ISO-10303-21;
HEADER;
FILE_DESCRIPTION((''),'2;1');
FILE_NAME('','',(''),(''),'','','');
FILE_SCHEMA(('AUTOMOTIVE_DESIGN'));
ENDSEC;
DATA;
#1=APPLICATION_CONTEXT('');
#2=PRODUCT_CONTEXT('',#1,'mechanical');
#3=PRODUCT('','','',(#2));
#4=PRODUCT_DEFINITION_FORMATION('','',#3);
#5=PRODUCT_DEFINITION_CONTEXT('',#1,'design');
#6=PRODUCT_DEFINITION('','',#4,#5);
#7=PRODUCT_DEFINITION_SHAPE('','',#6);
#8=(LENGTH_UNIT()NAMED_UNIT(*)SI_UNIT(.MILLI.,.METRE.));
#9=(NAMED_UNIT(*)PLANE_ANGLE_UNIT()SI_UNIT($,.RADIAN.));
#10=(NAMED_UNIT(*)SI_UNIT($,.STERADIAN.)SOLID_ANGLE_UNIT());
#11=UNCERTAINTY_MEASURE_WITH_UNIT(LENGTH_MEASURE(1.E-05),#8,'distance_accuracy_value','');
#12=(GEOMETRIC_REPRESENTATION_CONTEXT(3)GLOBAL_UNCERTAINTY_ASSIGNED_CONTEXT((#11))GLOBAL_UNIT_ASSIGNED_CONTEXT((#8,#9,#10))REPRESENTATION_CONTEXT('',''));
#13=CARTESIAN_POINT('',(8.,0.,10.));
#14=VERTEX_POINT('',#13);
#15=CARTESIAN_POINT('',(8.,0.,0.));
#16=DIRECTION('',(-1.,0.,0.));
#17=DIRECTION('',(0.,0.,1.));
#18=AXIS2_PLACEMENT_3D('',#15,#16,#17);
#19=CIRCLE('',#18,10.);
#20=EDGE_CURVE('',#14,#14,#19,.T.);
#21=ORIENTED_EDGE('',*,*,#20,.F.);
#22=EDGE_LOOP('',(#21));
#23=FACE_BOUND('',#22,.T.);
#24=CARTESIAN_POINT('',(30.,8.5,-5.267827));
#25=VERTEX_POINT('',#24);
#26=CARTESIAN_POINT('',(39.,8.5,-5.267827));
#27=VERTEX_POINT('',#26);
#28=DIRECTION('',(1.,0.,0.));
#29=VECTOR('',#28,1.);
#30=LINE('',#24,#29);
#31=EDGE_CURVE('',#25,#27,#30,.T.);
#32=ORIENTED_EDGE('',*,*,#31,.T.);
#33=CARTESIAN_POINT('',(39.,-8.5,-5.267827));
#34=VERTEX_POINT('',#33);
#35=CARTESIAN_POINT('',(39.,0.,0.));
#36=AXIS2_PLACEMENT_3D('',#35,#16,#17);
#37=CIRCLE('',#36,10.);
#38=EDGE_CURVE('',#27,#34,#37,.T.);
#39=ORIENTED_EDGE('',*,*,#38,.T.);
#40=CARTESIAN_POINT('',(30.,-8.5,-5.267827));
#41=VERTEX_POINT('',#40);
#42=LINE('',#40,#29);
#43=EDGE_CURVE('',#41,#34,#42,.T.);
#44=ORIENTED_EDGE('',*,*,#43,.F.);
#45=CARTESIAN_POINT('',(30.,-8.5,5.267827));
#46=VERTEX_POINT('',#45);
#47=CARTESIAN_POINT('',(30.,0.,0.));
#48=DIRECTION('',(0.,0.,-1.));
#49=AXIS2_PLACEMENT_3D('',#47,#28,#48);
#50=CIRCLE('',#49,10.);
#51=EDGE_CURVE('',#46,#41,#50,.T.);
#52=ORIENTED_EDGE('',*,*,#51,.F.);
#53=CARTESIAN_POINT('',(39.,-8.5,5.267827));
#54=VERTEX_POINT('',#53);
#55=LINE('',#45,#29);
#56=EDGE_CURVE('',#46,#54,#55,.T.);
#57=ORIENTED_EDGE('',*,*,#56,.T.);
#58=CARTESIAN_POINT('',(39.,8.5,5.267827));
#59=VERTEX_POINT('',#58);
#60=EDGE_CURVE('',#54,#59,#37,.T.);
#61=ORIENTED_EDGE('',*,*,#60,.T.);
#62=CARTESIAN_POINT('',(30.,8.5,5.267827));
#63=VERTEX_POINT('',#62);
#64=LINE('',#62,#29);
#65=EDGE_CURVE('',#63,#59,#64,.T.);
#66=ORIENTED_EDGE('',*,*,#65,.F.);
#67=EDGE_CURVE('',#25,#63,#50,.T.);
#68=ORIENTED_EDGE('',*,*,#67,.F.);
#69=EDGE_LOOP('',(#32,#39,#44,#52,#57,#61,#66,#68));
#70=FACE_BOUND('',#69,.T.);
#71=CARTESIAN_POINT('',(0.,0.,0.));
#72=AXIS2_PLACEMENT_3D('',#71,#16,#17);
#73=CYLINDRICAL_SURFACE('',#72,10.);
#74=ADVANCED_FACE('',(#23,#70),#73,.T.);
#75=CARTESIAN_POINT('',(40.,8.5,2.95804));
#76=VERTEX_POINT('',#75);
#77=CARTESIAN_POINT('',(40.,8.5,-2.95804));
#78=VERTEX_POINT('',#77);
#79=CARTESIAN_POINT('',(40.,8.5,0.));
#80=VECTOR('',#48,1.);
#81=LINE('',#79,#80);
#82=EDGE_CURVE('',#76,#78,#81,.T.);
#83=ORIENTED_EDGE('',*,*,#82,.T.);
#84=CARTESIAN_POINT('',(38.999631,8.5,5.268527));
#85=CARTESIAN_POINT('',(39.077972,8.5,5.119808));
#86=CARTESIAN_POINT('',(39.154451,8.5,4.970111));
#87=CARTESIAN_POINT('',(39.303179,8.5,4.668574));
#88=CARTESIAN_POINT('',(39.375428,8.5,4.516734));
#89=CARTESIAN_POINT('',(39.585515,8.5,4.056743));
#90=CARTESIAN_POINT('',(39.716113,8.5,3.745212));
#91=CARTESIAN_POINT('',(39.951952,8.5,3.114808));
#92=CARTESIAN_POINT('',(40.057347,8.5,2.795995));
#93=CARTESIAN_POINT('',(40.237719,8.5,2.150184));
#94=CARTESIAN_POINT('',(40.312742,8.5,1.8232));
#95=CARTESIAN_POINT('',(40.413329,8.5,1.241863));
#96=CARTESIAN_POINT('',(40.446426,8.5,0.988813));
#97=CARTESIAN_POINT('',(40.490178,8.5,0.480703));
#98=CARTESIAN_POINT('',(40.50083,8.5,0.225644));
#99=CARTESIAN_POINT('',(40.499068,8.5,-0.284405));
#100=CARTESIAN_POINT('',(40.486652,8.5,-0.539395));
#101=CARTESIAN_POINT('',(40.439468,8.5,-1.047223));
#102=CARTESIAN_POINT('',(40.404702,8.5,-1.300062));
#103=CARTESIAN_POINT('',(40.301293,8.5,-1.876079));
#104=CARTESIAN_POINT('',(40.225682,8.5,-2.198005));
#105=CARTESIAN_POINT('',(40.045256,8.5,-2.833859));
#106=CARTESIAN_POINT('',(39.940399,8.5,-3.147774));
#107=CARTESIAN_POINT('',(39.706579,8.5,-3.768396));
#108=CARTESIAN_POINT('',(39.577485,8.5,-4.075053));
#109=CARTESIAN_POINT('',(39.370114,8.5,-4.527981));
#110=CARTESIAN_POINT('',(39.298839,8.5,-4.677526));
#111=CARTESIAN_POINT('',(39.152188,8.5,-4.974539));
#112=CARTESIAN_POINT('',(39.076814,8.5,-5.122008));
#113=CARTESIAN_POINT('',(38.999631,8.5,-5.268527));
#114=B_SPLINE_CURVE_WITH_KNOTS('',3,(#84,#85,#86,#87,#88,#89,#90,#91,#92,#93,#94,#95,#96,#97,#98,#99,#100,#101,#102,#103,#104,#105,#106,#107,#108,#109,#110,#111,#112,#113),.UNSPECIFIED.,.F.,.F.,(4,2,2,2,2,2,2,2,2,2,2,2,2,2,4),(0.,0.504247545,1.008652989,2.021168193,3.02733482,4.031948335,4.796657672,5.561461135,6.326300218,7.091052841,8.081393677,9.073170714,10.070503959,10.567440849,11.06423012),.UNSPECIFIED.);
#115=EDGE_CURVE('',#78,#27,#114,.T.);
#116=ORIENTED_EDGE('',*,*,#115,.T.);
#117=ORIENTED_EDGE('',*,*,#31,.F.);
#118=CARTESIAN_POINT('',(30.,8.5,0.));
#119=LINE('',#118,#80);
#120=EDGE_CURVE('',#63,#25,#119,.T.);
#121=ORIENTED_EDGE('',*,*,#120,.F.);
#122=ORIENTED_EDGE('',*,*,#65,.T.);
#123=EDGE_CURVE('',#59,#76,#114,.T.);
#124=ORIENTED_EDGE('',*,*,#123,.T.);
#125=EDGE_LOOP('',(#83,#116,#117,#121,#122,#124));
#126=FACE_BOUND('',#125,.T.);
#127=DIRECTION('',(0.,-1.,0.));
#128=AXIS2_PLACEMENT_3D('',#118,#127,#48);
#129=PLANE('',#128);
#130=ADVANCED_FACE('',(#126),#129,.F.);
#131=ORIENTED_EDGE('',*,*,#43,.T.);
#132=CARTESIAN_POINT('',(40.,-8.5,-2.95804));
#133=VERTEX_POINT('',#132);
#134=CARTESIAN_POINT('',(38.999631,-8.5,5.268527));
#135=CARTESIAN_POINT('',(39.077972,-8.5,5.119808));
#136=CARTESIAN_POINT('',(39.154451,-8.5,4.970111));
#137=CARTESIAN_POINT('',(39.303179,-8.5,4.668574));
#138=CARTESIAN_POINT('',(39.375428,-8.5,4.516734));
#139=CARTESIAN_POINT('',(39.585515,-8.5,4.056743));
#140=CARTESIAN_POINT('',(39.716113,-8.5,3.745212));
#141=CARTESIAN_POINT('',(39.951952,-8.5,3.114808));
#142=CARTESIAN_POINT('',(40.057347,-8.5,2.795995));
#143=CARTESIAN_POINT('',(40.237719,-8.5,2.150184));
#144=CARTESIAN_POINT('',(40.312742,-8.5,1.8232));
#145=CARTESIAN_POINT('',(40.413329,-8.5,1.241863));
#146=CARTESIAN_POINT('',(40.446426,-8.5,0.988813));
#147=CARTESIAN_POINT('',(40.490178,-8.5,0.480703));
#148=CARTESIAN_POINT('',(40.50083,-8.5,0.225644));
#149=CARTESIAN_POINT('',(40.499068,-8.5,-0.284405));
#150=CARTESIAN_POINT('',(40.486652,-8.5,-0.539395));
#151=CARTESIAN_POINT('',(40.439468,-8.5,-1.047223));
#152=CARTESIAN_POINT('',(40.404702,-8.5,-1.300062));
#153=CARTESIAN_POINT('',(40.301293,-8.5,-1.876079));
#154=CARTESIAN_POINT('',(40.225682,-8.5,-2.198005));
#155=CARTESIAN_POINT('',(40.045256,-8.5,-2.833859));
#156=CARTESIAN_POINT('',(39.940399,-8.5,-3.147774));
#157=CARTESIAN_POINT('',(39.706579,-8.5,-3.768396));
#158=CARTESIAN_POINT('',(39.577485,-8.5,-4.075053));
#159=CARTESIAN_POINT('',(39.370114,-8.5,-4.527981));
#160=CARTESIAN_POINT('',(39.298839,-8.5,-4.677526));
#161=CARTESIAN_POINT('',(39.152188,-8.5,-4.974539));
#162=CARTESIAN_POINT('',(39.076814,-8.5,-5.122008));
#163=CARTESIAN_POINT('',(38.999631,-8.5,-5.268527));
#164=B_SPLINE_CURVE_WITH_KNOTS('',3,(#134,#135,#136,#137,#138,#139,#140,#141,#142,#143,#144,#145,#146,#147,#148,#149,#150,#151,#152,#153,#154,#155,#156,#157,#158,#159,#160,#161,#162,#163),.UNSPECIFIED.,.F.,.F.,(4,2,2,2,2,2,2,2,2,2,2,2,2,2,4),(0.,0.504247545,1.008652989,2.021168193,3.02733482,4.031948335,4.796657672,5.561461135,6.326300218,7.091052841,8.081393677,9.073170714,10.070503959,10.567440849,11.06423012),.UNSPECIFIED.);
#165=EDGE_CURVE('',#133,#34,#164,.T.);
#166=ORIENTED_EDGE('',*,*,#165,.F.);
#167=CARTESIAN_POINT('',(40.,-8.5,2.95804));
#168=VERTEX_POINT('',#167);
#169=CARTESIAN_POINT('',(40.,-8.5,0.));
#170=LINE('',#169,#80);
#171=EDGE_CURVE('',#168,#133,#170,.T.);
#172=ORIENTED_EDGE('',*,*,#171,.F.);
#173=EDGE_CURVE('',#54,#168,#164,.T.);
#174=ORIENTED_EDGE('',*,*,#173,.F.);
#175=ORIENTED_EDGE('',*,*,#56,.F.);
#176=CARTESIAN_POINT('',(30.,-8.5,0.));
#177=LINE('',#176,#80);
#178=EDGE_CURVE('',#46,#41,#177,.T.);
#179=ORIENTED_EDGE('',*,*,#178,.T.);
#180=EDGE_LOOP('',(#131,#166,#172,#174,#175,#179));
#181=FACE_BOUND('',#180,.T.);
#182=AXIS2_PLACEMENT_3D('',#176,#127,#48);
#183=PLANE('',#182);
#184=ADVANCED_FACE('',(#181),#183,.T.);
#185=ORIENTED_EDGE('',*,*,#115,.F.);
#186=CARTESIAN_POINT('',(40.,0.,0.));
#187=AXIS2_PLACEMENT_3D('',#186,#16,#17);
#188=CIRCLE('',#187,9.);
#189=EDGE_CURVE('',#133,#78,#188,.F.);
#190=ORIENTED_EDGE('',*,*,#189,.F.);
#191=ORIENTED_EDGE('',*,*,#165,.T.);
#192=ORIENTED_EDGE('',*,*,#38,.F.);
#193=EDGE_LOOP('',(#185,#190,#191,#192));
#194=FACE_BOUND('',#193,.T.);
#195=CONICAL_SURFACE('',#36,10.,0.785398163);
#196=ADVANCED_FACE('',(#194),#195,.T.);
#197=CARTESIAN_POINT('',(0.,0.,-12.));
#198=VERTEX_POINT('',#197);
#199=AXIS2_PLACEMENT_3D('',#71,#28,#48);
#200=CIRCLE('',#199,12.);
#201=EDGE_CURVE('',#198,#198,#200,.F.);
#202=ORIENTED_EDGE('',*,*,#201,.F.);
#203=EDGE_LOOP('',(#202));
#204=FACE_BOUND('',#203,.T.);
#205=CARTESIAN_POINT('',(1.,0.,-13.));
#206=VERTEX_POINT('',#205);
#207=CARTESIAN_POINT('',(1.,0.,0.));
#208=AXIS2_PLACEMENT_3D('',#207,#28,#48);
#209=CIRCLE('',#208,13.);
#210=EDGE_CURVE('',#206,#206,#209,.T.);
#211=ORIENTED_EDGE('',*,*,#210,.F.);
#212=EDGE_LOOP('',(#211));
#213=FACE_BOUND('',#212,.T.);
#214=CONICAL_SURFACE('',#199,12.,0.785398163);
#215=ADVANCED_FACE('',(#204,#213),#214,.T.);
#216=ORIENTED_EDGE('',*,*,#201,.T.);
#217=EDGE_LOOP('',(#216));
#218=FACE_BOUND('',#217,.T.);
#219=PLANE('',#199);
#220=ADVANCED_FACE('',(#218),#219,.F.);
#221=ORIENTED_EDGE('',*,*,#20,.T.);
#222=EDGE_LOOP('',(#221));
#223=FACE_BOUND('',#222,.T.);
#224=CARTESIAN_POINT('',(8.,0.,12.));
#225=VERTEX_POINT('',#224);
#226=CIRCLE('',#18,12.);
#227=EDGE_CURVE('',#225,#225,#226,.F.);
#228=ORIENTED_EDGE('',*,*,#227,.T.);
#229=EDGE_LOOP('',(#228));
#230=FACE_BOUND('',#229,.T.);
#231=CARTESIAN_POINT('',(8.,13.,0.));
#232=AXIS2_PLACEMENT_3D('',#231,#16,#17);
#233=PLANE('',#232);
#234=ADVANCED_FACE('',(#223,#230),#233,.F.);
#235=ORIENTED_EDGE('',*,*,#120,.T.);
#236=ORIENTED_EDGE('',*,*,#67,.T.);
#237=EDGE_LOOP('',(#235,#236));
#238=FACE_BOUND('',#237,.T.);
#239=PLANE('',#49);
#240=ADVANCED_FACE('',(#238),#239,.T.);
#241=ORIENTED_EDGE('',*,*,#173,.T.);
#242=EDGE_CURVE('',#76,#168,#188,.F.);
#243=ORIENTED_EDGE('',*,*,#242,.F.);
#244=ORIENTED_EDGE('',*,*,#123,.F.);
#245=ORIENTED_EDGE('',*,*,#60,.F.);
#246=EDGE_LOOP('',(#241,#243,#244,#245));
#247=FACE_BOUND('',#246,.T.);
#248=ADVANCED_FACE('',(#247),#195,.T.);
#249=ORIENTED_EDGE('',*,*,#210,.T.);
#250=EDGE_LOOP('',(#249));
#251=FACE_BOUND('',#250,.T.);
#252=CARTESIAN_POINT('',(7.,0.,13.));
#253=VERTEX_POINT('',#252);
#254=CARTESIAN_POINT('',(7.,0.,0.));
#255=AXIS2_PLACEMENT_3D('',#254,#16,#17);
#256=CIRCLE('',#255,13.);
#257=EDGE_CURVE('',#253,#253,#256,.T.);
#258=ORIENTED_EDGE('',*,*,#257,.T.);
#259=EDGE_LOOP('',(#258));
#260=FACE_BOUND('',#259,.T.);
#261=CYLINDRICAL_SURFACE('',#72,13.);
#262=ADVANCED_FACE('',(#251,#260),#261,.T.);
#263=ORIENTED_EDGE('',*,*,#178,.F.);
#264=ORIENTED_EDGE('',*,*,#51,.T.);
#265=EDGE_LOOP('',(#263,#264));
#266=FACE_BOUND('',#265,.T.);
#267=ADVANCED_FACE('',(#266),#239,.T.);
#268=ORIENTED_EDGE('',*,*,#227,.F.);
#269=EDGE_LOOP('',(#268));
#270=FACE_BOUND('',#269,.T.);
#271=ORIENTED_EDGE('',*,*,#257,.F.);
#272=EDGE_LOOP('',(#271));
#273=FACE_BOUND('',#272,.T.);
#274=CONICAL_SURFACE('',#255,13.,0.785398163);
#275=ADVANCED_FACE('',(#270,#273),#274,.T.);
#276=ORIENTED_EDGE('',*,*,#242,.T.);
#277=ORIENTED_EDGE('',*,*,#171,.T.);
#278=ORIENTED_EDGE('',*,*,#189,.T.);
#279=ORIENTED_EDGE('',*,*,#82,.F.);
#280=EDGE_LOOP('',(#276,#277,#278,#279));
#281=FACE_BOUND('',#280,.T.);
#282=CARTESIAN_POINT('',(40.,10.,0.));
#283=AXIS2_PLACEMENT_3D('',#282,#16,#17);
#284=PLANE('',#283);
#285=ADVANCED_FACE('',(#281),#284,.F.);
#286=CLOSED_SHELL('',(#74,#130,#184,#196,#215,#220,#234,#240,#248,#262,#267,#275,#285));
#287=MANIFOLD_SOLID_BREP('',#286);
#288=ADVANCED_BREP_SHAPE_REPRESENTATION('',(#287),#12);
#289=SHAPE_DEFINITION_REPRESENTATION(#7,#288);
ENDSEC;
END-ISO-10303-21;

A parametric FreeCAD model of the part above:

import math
import FreeCAD as App
import Part
import Sketcher
from FreeCAD import Vector


def edges_at(feature, points):
    """Names of the edges that pass closest to the given points."""
    edges = feature.Shape.Edges
    near = lambda p: min(range(len(edges)), key=lambda i: edges[i].distToShape(Part.Vertex(*p))[0])
    return sorted({f"Edge{near(p) + 1}" for p in points})

doc = App.newDocument("Part")
body = doc.addObject("PartDesign::Body", "Body")

# Sketch on XY plane
sketch1 = body.newObject("Sketcher::SketchObject", "Sketch")
sketch1.AttachmentSupport = (doc.getObject("XY_Plane"), [""])
sketch1.MapMode = "FlatFace"
sketch1.addGeometry([
    Part.LineSegment(Vector(0, 13, 0), Vector(0, 0, 0)),  # 0
    Part.LineSegment(Vector(0, 0, 0), Vector(40, 0, 0)),  # 1
    Part.LineSegment(Vector(40, 0, 0), Vector(40, 10, 0)),  # 2
    Part.LineSegment(Vector(40, 10, 0), Vector(8, 10, 0)),  # 3
    Part.LineSegment(Vector(8, 10, 0), Vector(8, 13, 0)),  # 4
    Part.LineSegment(Vector(8, 13, 0), Vector(0, 13, 0)),  # 5
], False)
sketch1.addConstraint([
    Sketcher.Constraint("Coincident", 0, 2, 1, 1),
    Sketcher.Constraint("Coincident", 1, 2, 2, 1),
    Sketcher.Constraint("Coincident", 2, 2, 3, 1),
    Sketcher.Constraint("Coincident", 3, 2, 4, 1),
    Sketcher.Constraint("Coincident", 4, 2, 5, 1),
    Sketcher.Constraint("Coincident", 5, 2, 0, 1),
    Sketcher.Constraint("Vertical", 0),
    Sketcher.Constraint("Horizontal", 1),
    Sketcher.Constraint("Vertical", 2),
    Sketcher.Constraint("Horizontal", 3),
    Sketcher.Constraint("Vertical", 4),
    Sketcher.Constraint("Horizontal", 5),
    Sketcher.Constraint("Coincident", 0, 2, -1, 1),
    Sketcher.Constraint("DistanceX", 1, 1, 1, 2, 40.0),
    Sketcher.Constraint("DistanceX", 3, 2, 3, 1, 32.0),
    Sketcher.Constraint("DistanceY", 0, 2, 0, 1, 13.0),
    Sketcher.Constraint("DistanceY", 2, 1, 2, 2, 10.0),
])
revolution = body.newObject("PartDesign::Revolution", "Revolution")
revolution.Profile = sketch1
revolution.ReferenceAxis = (sketch1, ["H_Axis"])
revolution.Angle = 360
doc.recompute()

chamfer = body.newObject("PartDesign::Chamfer", "Chamfer")
chamfer.Base = (revolution, edges_at(revolution, [(40, 0, -10), (8, 0, -13), (0, 0, -13)]))
chamfer.Size = 1

# Sketch on YZ plane
sketch2 = body.newObject("Sketcher::SketchObject", "Sketch001")
sketch2.AttachmentSupport = (doc.getObject("YZ_Plane"), [""])
sketch2.MapMode = "FlatFace"
sketch2.AttachmentOffset = App.Placement(Vector(0, 0, 40), App.Rotation())
sketch2.addGeometry([
    Part.ArcOfCircle(Part.Circle(Vector(0, 0, 0), Vector(0, 0, 1), 10), math.radians(-31.788331), math.radians(31.788331)),
    Part.LineSegment(Vector(8.5, 5.267827, 0), Vector(8.5, -5.267827, 0)),
    Part.ArcOfCircle(Part.Circle(Vector(0, 0, 0), Vector(0, 0, 1), 10), math.radians(148.211669), math.radians(211.788331)),
    Part.LineSegment(Vector(-8.5, -5.267827, 0), Vector(-8.5, 5.267827, 0)),
], False)
sketch2.addConstraint([
    Sketcher.Constraint("Coincident", 0, 1, 1, 2),
    Sketcher.Constraint("Coincident", 1, 1, 0, 2),
    Sketcher.Constraint("Coincident", 2, 1, 3, 2),
    Sketcher.Constraint("Coincident", 3, 1, 2, 2),
    Sketcher.Constraint("Vertical", 1),
    Sketcher.Constraint("Vertical", 3),
    Sketcher.Constraint("Coincident", 0, 3, -1, 1),
    Sketcher.Constraint("Coincident", 2, 3, -1, 1),
    Sketcher.Constraint("Equal", 0, 2),
    Sketcher.Constraint("Horizontal", 1, 1, 2, 1),
    Sketcher.Constraint("Radius", 0, 10.0),
    Sketcher.Constraint("DistanceX", 2, 1, 1, 1, 17.0),
])
pocket1 = body.newObject("PartDesign::Pocket", "Pocket")
pocket1.Profile = sketch2
pocket1.Length = 10

doc.recompute()
